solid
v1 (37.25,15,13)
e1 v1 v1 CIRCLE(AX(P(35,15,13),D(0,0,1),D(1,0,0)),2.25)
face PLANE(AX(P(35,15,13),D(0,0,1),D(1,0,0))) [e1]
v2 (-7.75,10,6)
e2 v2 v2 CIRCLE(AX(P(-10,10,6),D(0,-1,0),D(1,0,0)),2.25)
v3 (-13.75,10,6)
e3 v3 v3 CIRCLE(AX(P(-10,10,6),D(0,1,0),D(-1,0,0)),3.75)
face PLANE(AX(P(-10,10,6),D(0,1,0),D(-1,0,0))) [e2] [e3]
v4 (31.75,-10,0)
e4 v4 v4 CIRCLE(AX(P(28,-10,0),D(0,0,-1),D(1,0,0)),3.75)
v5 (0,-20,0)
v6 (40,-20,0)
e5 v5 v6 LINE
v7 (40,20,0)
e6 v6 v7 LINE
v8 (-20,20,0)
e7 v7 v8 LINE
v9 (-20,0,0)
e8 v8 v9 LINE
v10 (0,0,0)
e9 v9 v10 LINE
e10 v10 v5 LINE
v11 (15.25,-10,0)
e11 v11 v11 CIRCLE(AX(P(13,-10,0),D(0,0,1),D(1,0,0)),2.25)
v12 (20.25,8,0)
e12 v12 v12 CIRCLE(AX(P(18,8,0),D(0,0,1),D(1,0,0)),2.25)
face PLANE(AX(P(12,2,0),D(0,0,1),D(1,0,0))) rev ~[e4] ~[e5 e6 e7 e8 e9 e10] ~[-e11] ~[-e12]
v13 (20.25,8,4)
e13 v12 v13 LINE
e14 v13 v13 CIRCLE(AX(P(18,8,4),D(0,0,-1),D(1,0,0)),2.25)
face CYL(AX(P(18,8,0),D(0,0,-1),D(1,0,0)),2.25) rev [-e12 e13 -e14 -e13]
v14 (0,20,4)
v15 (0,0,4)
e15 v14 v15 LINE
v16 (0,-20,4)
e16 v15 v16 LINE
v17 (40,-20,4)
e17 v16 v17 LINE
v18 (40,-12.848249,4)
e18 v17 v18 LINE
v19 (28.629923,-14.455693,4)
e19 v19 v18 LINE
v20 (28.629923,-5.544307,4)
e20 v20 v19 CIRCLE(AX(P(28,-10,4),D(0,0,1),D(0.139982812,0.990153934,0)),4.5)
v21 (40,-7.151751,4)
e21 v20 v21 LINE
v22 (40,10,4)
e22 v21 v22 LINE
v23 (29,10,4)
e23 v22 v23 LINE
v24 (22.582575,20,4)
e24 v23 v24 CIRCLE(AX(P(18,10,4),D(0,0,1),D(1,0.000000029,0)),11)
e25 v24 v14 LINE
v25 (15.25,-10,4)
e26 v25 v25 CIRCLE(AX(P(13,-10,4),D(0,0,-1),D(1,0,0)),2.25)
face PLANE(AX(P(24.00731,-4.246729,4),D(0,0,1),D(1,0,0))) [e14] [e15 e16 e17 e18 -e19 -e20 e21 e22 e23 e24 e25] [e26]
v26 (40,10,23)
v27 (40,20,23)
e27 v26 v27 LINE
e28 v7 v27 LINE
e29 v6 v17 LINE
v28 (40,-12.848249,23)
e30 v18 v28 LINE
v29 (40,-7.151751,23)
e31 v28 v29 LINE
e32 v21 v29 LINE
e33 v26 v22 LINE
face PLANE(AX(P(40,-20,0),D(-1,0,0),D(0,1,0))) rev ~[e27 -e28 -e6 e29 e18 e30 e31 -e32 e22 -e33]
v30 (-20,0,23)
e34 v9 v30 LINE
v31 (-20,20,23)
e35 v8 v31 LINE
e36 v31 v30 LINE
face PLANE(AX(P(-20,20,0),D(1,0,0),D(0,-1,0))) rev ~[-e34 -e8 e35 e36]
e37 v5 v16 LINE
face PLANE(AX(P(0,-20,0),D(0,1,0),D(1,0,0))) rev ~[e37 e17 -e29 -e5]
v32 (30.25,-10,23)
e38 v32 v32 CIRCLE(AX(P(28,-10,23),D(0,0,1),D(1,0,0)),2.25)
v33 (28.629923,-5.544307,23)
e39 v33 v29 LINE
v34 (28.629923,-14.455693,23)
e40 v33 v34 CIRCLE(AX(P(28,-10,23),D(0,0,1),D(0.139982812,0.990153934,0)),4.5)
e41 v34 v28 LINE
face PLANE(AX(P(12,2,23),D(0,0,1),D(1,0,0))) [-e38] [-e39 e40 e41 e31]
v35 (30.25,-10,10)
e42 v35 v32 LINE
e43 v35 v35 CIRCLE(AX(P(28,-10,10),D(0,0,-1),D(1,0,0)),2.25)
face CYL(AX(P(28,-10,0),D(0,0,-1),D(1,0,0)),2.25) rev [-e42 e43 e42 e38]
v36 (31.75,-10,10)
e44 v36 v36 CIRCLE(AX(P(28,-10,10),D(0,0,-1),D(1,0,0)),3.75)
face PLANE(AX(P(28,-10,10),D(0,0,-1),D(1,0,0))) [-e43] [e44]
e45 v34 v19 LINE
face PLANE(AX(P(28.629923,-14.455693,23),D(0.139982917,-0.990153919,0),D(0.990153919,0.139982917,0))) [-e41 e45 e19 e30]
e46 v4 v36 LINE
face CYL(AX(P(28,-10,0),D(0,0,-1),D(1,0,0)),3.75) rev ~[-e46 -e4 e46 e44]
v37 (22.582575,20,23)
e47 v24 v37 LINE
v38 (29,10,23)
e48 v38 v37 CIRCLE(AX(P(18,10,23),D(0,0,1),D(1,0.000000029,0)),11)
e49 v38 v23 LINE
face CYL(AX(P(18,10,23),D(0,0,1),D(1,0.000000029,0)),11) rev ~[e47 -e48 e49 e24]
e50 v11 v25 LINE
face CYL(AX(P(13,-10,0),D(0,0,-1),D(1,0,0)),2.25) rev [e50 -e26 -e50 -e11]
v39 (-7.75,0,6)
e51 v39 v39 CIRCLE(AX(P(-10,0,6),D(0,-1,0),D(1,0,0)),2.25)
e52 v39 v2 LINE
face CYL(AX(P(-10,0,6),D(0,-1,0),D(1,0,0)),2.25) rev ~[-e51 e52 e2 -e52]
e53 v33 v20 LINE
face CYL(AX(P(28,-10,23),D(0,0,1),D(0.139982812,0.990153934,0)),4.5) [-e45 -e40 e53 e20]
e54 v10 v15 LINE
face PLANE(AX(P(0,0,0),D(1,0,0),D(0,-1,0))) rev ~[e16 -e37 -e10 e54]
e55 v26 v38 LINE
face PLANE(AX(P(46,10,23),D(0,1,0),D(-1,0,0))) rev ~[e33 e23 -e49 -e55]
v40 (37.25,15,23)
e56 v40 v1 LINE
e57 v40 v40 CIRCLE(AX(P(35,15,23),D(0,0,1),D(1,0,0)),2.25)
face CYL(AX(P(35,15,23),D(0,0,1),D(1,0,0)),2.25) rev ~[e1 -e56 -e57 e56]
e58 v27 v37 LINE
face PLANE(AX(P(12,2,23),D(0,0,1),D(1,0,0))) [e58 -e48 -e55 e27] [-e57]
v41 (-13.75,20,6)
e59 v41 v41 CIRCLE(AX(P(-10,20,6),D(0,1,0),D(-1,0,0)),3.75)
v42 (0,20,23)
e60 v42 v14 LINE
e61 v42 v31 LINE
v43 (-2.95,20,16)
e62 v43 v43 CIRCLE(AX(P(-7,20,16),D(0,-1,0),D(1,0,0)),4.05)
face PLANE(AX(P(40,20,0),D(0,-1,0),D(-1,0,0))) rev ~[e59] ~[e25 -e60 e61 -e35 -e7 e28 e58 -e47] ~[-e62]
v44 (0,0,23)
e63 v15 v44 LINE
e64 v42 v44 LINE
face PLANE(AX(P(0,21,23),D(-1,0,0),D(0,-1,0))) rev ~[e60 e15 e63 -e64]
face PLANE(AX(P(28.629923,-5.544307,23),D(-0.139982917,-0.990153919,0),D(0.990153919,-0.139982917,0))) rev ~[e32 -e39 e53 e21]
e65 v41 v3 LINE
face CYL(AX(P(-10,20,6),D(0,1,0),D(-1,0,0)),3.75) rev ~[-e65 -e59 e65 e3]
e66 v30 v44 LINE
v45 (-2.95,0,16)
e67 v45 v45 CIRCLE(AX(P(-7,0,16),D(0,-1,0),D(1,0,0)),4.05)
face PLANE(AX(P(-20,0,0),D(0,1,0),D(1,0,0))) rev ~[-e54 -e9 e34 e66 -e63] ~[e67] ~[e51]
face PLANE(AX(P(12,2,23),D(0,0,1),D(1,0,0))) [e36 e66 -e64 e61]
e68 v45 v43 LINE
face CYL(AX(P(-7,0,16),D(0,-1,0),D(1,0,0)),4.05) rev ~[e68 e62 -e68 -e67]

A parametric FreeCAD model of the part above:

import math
import FreeCAD as App
import Part
import Sketcher


def add_polygon(sketch, points):
    """Adds a closed chain of lines whose ends are joined by coincident constraints."""
    first, n = sketch.GeometryCount, len(points)
    for a, b in zip(points, points[1:] + points[:1]):
        sketch.addGeometry(Part.LineSegment(App.Vector(*a, 0), App.Vector(*b, 0)), False)
    for i in range(n):
        sketch.addConstraint(Sketcher.Constraint("Coincident", first + i, 2, first + (i + 1) % n, 1))

doc = App.newDocument("Part")
body = doc.addObject("PartDesign::Body", "Body")

sketch1 = doc.addObject("Sketcher::SketchObject", "Sketch")
body.addObject(sketch1)
sketch1.AttachmentSupport = (doc.XY_Plane, [""])
sketch1.MapMode = "FlatFace"
add_polygon(sketch1, [(0, -20), (40, -20), (40, 20), (-20, 20), (-20, 0), (0, 0)])
sketch1.addGeometry(Part.Circle(App.Vector(13, -10, 0), App.Vector(0, 0, 1), 2.2), False)
sketch1.addGeometry(Part.Circle(App.Vector(28, -10, 0), App.Vector(0, 0, 1), 2.2), False)
sketch1.addGeometry(Part.Circle(App.Vector(18, 8, 0), App.Vector(0, 0, 1), 2.2), False)
sketch1.addConstraint(Sketcher.Constraint("Horizontal", 0))
sketch1.addConstraint(Sketcher.Constraint("Vertical", 1))
sketch1.addConstraint(Sketcher.Constraint("Horizontal", 2))
sketch1.addConstraint(Sketcher.Constraint("Vertical", 3))
sketch1.addConstraint(Sketcher.Constraint("Horizontal", 4))
sketch1.addConstraint(Sketcher.Constraint("Vertical", 5))
sketch1.addConstraint(Sketcher.Constraint("Coincident", 4, 2, -1, 1))
sketch1.addConstraint(Sketcher.Constraint("Equal", 6, 7))
sketch1.addConstraint(Sketcher.Constraint("Equal", 7, 8))
sketch1.addConstraint(Sketcher.Constraint("Horizontal", 6, 3, 7, 3))
sketch1.addConstraint(Sketcher.Constraint("Equal", 0, 1))
sketch1.addConstraint(Sketcher.Constraint("Equal", 4, 3))
sketch1.addConstraint(Sketcher.Constraint("Equal", 3, 5))
sketch1.addConstraint(Sketcher.Constraint("Diameter", 6, 4.5))
sketch1.addConstraint(Sketcher.Constraint("DistanceX", 0, 1, 0, 2, 40.0))
sketch1.addConstraint(Sketcher.Constraint("DistanceX", -1, 1, 6, 3, 13.0))
sketch1.addConstraint(Sketcher.Constraint("DistanceY", 6, 3, -1, 1, 10.0))
sketch1.addConstraint(Sketcher.Constraint("DistanceX", -1, 1, 7, 3, 28.0))
sketch1.addConstraint(Sketcher.Constraint("DistanceX", -1, 1, 8, 3, 18.0))
sketch1.addConstraint(Sketcher.Constraint("DistanceY", -1, 1, 8, 3, 8.0))
pad1 = doc.addObject("PartDesign::Pad", "Pad")
body.addObject(pad1)
pad1.Profile = sketch1
pad1.Length = 23

sketch2 = doc.addObject("Sketcher::SketchObject", "Sketch001")
body.addObject(sketch2)
sketch2.AttachmentSupport = (doc.XY_Plane, [""])
sketch2.MapMode = "FlatFace"
sketch2.AttachmentOffset = App.Placement(App.Vector(0, 0, 23), App.Rotation())
sketch2.addGeometry(Part.LineSegment(App.Vector(46, 10, 0), App.Vector(29, 10, 0)), False)
sketch2.addGeometry(Part.ArcOfCircle(Part.Circle(App.Vector(18, 10, 0), App.Vector(0, 0, 1), 11), math.radians(0.000002), math.radians(90.000228)), False)
sketch2.addGeometry(Part.LineSegment(App.Vector(17.999956, 21, 0), App.Vector(0, 21, 0)), False)
sketch2.addGeometry(Part.LineSegment(App.Vector(0, 21, 0), App.Vector(0, -23, 0)), False)
sketch2.addGeometry(Part.LineSegment(App.Vector(0, -23, 0), App.Vector(46, -23, 0)), False)
sketch2.addGeometry(Part.LineSegment(App.Vector(46, -23, 0), App.Vector(46, -12, 0)), False)
sketch2.addGeometry(Part.LineSegment(App.Vector(46, -12, 0), App.Vector(28.629923, -14.455693, 0)), False)
sketch2.addGeometry(Part.ArcOfCircle(Part.Circle(App.Vector(28, -10, 0), App.Vector(0, 0, 1), 4.5), math.radians(81.953148), math.radians(278.046852)), False)
sketch2.addGeometry(Part.LineSegment(App.Vector(28.629923, -5.544307, 0), App.Vector(46, -8, 0)), False)
sketch2.addGeometry(Part.LineSegment(App.Vector(46, -8, 0), App.Vector(46, 10, 0)), False)
sketch2.addConstraint(Sketcher.Constraint("Coincident", 0, 2, 1, 1))
sketch2.addConstraint(Sketcher.Constraint("Coincident", 1, 2, 2, 1))
sketch2.addConstraint(Sketcher.Constraint("Coincident", 2, 2, 3, 1))
sketch2.addConstraint(Sketcher.Constraint("Coincident", 3, 2, 4, 1))
sketch2.addConstraint(Sketcher.Constraint("Coincident", 4, 2, 5, 1))
sketch2.addConstraint(Sketcher.Constraint("Coincident", 5, 2, 6, 1))
sketch2.addConstraint(Sketcher.Constraint("Tangent", 6, 2, 7, 2))
sketch2.addConstraint(Sketcher.Constraint("Tangent", 7, 1, 8, 1))
sketch2.addConstraint(Sketcher.Constraint("Coincident", 8, 2, 9, 1))
sketch2.addConstraint(Sketcher.Constraint("Coincident", 9, 2, 0, 1))
sketch2.addConstraint(Sketcher.Constraint("Horizontal", 0))
sketch2.addConstraint(Sketcher.Constraint("Horizontal", 2))
sketch2.addConstraint(Sketcher.Constraint("Vertical", 3))
sketch2.addConstraint(Sketcher.Constraint("Horizontal", 4))
sketch2.addConstraint(Sketcher.Constraint("Vertical", 5))
sketch2.addConstraint(Sketcher.Constraint("Vertical", 9))
sketch2.addConstraint(Sketcher.Constraint("PointOnObject", 2, 2, -2))
sketch2.addConstraint(Sketcher.Constraint("Horizontal", 1, 3, 0, 2))
sketch2.addConstraint(Sketcher.Constraint("Vertical", 6, 2, 7, 1))
sketch2.addConstraint(Sketcher.Constraint("Vertical", 5, 2, 8, 2))
sketch2.addConstraint(Sketcher.Constraint("Radius", 1, 11.0))
sketch2.addConstraint(Sketcher.Constraint("Radius", 7, 4.5))
sketch2.addConstraint(Sketcher.Constraint("DistanceX", 0, 2, 0, 1, 17.0))
sketch2.addConstraint(Sketcher.Constraint("DistanceX", 4, 1, 4, 2, 46.0))
sketch2.addConstraint(Sketcher.Constraint("DistanceY", 3, 2, 3, 1, 44.0))
sketch2.addConstraint(Sketcher.Constraint("DistanceY", 5, 1, 5, 2, 11.0))
sketch2.addConstraint(Sketcher.Constraint("DistanceY", 9, 1, 9, 2, 18.0))
sketch2.addConstraint(Sketcher.Constraint("DistanceY", -1, 1, 1, 3, 10.0))
sketch2.addConstraint(Sketcher.Constraint("DistanceX", -1, 1, 7, 3, 28.0))
sketch2.addConstraint(Sketcher.Constraint("DistanceX", 2, 2, 2, 1, 17.999956))
pocket1 = doc.addObject("PartDesign::Pocket", "Pocket")
body.addObject(pocket1)
pocket1.Profile = sketch2
pocket1.Length = 19

sketch3 = doc.addObject("Sketcher::SketchObject", "Sketch002")
body.addObject(sketch3)
sketch3.AttachmentSupport = (doc.XZ_Plane, [""])
sketch3.MapMode = "FlatFace"
sketch3.addGeometry(Part.Circle(App.Vector(-7, 16, 0), App.Vector(0, 0, 1), 4), False)
sketch3.addGeometry(Part.Circle(App.Vector(-10, 6, 0), App.Vector(0, 0, 1), 2.2), False)
sketch3.addConstraint(Sketcher.Constraint("Diameter", 0, 8.1))
sketch3.addConstraint(Sketcher.Constraint("Diameter", 1, 4.5))
sketch3.addConstraint(Sketcher.Constraint("DistanceX", 0, 3, -1, 1, 7.0))
sketch3.addConstraint(Sketcher.Constraint("DistanceY", -1, 1, 0, 3, 16.0))
sketch3.addConstraint(Sketcher.Constraint("DistanceX", 1, 3, -1, 1, 10.0))
sketch3.addConstraint(Sketcher.Constraint("DistanceY", -1, 1, 1, 3, 6.0))
pocket2 = doc.addObject("PartDesign::Pocket", "Pocket001")
body.addObject(pocket2)
pocket2.Profile = sketch3
pocket2.Type = "ThroughAll"

sketch4 = doc.addObject("Sketcher::SketchObject", "Sketch003")
body.addObject(sketch4)
sketch4.AttachmentSupport = (doc.XY_Plane, [""])
sketch4.MapMode = "FlatFace"
sketch4.AttachmentOffset = App.Placement(App.Vector(0, 0, 23), App.Rotation())
sketch4.addGeometry(Part.Circle(App.Vector(35, 15, 0), App.Vector(0, 0, 1), 2.2), False)
sketch4.addConstraint(Sketcher.Constraint("Diameter", 0, 4.5))
sketch4.addConstraint(Sketcher.Constraint("DistanceX", -1, 1, 0, 3, 35.0))
sketch4.addConstraint(Sketcher.Constraint("DistanceY", -1, 1, 0, 3, 15.0))
pocket3 = doc.addObject("PartDesign::Pocket", "Pocket002")
body.addObject(pocket3)
pocket3.Profile = sketch4
pocket3.Length = 10

sketch5 = doc.addObject("Sketcher::SketchObject", "Sketch004")
body.addObject(sketch5)
sketch5.AttachmentSupport = (doc.XZ_Plane, [""])
sketch5.MapMode = "FlatFace"
sketch5.AttachmentOffset = App.Placement(App.Vector(0, 0, -20), App.Rotation())
sketch5.addGeometry(Part.Circle(App.Vector(-10, 6, 0), App.Vector(0, 0, 1), 3.8), False)
sketch5.addConstraint(Sketcher.Constraint("Diameter", 0, 7.5))
sketch5.addConstraint(Sketcher.Constraint("DistanceX", 0, 3, -1, 1, 10.0))
sketch5.addConstraint(Sketcher.Constraint("DistanceY", -1, 1, 0, 3, 6.0))
pocket4 = doc.addObject("PartDesign::Pocket", "Pocket003")
body.addObject(pocket4)
pocket4.Profile = sketch5
pocket4.Length = 10
pocket4.Reversed = True

sketch6 = doc.addObject("Sketcher::SketchObject", "Sketch005")
body.addObject(sketch6)
sketch6.AttachmentSupport = (doc.XY_Plane, [""])
sketch6.MapMode = "FlatFace"
sketch6.addGeometry(Part.Circle(App.Vector(28, -10, 0), App.Vector(0, 0, 1), 3.8), False)
sketch6.addConstraint(Sketcher.Constraint("Diameter", 0, 7.5))
sketch6.addConstraint(Sketcher.Constraint("DistanceX", -1, 1, 0, 3, 28.0))
sketch6.addConstraint(Sketcher.Constraint("DistanceY", 0, 3, -1, 1, 10.0))
pocket5 = doc.addObject("PartDesign::Pocket", "Pocket004")
body.addObject(pocket5)
pocket5.Profile = sketch6
pocket5.Length = 10
pocket5.Reversed = True

doc.recompute()
